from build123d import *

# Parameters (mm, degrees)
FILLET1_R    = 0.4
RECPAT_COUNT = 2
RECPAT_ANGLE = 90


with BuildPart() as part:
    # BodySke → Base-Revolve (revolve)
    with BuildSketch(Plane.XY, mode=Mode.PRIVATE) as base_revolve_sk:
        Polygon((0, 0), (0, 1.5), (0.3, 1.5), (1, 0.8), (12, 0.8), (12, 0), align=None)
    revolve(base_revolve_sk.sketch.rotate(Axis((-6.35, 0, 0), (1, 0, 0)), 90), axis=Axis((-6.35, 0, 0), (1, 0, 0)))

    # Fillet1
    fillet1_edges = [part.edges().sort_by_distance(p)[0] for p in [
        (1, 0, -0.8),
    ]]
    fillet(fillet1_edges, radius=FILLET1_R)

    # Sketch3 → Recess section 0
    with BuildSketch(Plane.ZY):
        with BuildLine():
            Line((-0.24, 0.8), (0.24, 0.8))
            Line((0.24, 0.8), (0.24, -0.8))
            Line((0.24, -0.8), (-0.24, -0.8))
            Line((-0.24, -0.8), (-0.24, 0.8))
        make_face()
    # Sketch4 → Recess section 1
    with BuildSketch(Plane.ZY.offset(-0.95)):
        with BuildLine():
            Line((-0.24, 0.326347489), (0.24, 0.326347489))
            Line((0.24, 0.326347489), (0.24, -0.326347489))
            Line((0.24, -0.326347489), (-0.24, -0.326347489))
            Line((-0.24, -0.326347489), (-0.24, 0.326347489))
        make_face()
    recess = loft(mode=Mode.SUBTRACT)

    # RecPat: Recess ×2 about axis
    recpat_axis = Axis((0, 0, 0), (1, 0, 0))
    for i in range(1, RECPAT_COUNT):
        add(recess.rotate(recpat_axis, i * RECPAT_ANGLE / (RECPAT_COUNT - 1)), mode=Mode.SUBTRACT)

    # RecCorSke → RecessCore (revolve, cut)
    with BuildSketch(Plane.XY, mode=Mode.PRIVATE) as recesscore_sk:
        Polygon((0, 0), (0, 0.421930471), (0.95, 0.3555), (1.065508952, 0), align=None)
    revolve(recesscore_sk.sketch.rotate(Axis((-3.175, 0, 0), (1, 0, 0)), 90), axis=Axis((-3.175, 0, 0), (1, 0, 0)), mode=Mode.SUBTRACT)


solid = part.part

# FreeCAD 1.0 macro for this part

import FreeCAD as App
import Part
import Sketcher
from FreeCAD import Vector
Q = App.Units.Quantity


def edges_at(feature, points):
    """Names of the edges that pass closest to the given points."""
    edges = feature.Shape.Edges
    near = lambda p: min(range(len(edges)), key=lambda i: edges[i].distToShape(Part.Vertex(*p))[0])
    return sorted({f"Edge{near(p) + 1}" for p in points})

doc = App.newDocument("Part")
params = doc.addObject("Spreadsheet::Sheet", "Params")
for row, (alias, value) in enumerate([
    ("sketch1_width", "12 mm"),
    ("sketch1_width2", "11 mm"),
    ("sketch1_width3", "0.3 mm"),
    ("sketch1_height", "1.5 mm"),
    ("revolution_angle", "360 deg"),
    ("fillet_radius", "0.4 mm"),
    ("sketch2_width", "1.6 mm"),
    ("sketch2_height", "0.48 mm"),
    ("sketch3_height", "0.48 mm"),
    ("groove_angle", "360 deg"),
], start=1):
    params.set(f"A{row}", alias)
    params.set(f"B{row}", "=" + value)
    params.setAlias(f"B{row}", alias)

body = doc.addObject("PartDesign::Body", "Body")

# Sketch on XY plane
sketch1 = body.newObject("Sketcher::SketchObject", "Sketch")
sketch1.AttachmentSupport = (doc.getObject("XY_Plane"), [""])
sketch1.MapMode = "FlatFace"
sketch1.addGeometry([
    Part.LineSegment(Vector(0, 1.5, 0), Vector(0, 0, 0)),  # 0
    Part.LineSegment(Vector(0, 0, 0), Vector(12, 0, 0)),  # 1
    Part.LineSegment(Vector(12, 0, 0), Vector(12, 0.8, 0)),  # 2
    Part.LineSegment(Vector(12, 0.8, 0), Vector(1, 0.8, 0)),  # 3
    Part.LineSegment(Vector(1, 0.8, 0), Vector(0.3, 1.5, 0)),  # 4
    Part.LineSegment(Vector(0.3, 1.5, 0), Vector(0, 1.5, 0)),  # 5
], False)
sketch1.addConstraint([
    Sketcher.Constraint("Coincident", 0, 2, 1, 1),
    Sketcher.Constraint("Coincident", 1, 2, 2, 1),
    Sketcher.Constraint("Coincident", 2, 2, 3, 1),
    Sketcher.Constraint("Coincident", 3, 2, 4, 1),
    Sketcher.Constraint("Coincident", 4, 2, 5, 1),
    Sketcher.Constraint("Coincident", 5, 2, 0, 1),
    Sketcher.Constraint("Vertical", 0),
    Sketcher.Constraint("Horizontal", 1),
    Sketcher.Constraint("Vertical", 2),
    Sketcher.Constraint("Horizontal", 3),
    Sketcher.Constraint("Horizontal", 5),
    Sketcher.Constraint("Coincident", 0, 2, -1, 1),
    Sketcher.Constraint("DistanceX", 1, 1, 1, 2, 12.0),
    Sketcher.Constraint("DistanceX", 3, 2, 3, 1, 11.0),
    Sketcher.Constraint("Angle", 4, Q("135 deg")),
    Sketcher.Constraint("DistanceX", 5, 2, 5, 1, 0.3),
    Sketcher.Constraint("DistanceY", 0, 2, 0, 1, 1.5),
])
sketch1.setExpression("Constraints[12]", "Params.sketch1_width")
sketch1.setExpression("Constraints[13]", "Params.sketch1_width2")
sketch1.setExpression("Constraints[15]", "Params.sketch1_width3")
sketch1.setExpression("Constraints[16]", "Params.sketch1_height")
revolution = body.newObject("PartDesign::Revolution", "Revolution")
revolution.Profile = sketch1
revolution.ReferenceAxis = (sketch1, ["H_Axis"])
revolution.setExpression("Angle", "Params.revolution_angle")
doc.recompute()

fillet = body.newObject("PartDesign::Fillet", "Fillet")
fillet.Base = (revolution, edges_at(revolution, [(1, 0, -0.8)]))
fillet.setExpression("Radius", "Params.fillet_radius")

# Sketch on YZ plane
sketch2 = body.newObject("Sketcher::SketchObject", "Sketch001")
sketch2.AttachmentSupport = (doc.getObject("YZ_Plane"), [""])
sketch2.MapMode = "FlatFace"
sketch2.addGeometry([
    Part.LineSegment(Vector(0.8, 0.24, 0), Vector(0.8, -0.24, 0)),
    Part.LineSegment(Vector(0.8, -0.24, 0), Vector(-0.8, -0.24, 0)),
    Part.LineSegment(Vector(-0.8, -0.24, 0), Vector(-0.8, 0.24, 0)),
    Part.LineSegment(Vector(-0.8, 0.24, 0), Vector(0.8, 0.24, 0)),
], False)
sketch2.addConstraint([
    Sketcher.Constraint("Coincident", 0, 2, 1, 1),
    Sketcher.Constraint("Coincident", 1, 2, 2, 1),
    Sketcher.Constraint("Coincident", 2, 2, 3, 1),
    Sketcher.Constraint("Coincident", 3, 2, 0, 1),
    Sketcher.Constraint("Vertical", 0),
    Sketcher.Constraint("Horizontal", 1),
    Sketcher.Constraint("Vertical", 2),
    Sketcher.Constraint("Horizontal", 3),
    Sketcher.Constraint("Symmetric", 0, 2, 2, 2, -1, 1),
    Sketcher.Constraint("DistanceX", 1, 2, 1, 1, 1.6),
    Sketcher.Constraint("DistanceY", 0, 2, 0, 1, 0.48),
])
sketch2.setExpression("Constraints[9]", "Params.sketch2_width")
sketch2.setExpression("Constraints[10]", "Params.sketch2_height")

# Sketch on YZ plane
sketch3 = body.newObject("Sketcher::SketchObject", "Sketch002")
sketch3.AttachmentSupport = (doc.getObject("YZ_Plane"), [""])
sketch3.MapMode = "FlatFace"
sketch3.AttachmentOffset = App.Placement(Vector(0, 0, 0.95), App.Rotation())
sketch3.addGeometry([
    Part.LineSegment(Vector(0.326347, 0.24, 0), Vector(0.326347, -0.24, 0)),
    Part.LineSegment(Vector(0.326347, -0.24, 0), Vector(-0.326347, -0.24, 0)),
    Part.LineSegment(Vector(-0.326347, -0.24, 0), Vector(-0.326347, 0.24, 0)),
    Part.LineSegment(Vector(-0.326347, 0.24, 0), Vector(0.326347, 0.24, 0)),
], False)
sketch3.addConstraint([
    Sketcher.Constraint("Coincident", 0, 2, 1, 1),
    Sketcher.Constraint("Coincident", 1, 2, 2, 1),
    Sketcher.Constraint("Coincident", 2, 2, 3, 1),
    Sketcher.Constraint("Coincident", 3, 2, 0, 1),
    Sketcher.Constraint("Vertical", 0),
    Sketcher.Constraint("Horizontal", 1),
    Sketcher.Constraint("Vertical", 2),
    Sketcher.Constraint("Horizontal", 3),
    Sketcher.Constraint("Symmetric", 0, 2, 2, 2, -1, 1),
    Sketcher.Constraint("DistanceY", 0, 2, 0, 1, 0.48),
    Sketcher.Constraint("DistanceX", 1, 2, 1, 1, 0.652695),
])
sketch3.setExpression("Constraints[9]", "Params.sketch3_height")

subtractiveloft = body.newObject("PartDesign::SubtractiveLoft", "SubtractiveLoft")
subtractiveloft.Profile = sketch2
subtractiveloft.Sections = [sketch3]
doc.recompute()

polarpattern = body.newObject("PartDesign::PolarPattern", "PolarPattern")
polarpattern.Originals = [subtractiveloft]
polarpattern.Axis = (doc.getObject("X_Axis"), [""])
polarpattern.Angle = 90
polarpattern.Occurrences = 2
body.Tip = polarpattern

# Sketch on XY plane
sketch4 = body.newObject("Sketcher::SketchObject", "Sketch003")
sketch4.AttachmentSupport = (doc.getObject("XY_Plane"), [""])
sketch4.MapMode = "FlatFace"
sketch4.addGeometry([
    Part.LineSegment(Vector(0, 0.42193, 0), Vector(0, 0, 0)),
    Part.LineSegment(Vector(0, 0, 0), Vector(1.065509, 0, 0)),
    Part.LineSegment(Vector(1.065509, 0, 0), Vector(0.95, 0.3555, 0)),
    Part.LineSegment(Vector(0.95, 0.3555, 0), Vector(0, 0.42193, 0)),
], False)
sketch4.addConstraint([
    Sketcher.Constraint("Coincident", 0, 2, 1, 1),
    Sketcher.Constraint("Coincident", 1, 2, 2, 1),
    Sketcher.Constraint("Coincident", 2, 2, 3, 1),
    Sketcher.Constraint("Coincident", 3, 2, 0, 1),
    Sketcher.Constraint("Vertical", 0),
    Sketcher.Constraint("Horizontal", 1),
    Sketcher.Constraint("Coincident", 0, 2, -1, 1),
    Sketcher.Constraint("Angle", 2, Q("108 deg")),
    Sketcher.Constraint("Angle", 3, Q("176 deg")),
    Sketcher.Constraint("DistanceX", -1, 1, 2, 2, 0.95),
    Sketcher.Constraint("DistanceX", 1, 1, 1, 2, 1.065509),
])
groove = body.newObject("PartDesign::Groove", "Groove")
groove.Profile = sketch4
groove.ReferenceAxis = (sketch4, ["H_Axis"])
groove.setExpression("Angle", "Params.groove_angle")

doc.recompute()
